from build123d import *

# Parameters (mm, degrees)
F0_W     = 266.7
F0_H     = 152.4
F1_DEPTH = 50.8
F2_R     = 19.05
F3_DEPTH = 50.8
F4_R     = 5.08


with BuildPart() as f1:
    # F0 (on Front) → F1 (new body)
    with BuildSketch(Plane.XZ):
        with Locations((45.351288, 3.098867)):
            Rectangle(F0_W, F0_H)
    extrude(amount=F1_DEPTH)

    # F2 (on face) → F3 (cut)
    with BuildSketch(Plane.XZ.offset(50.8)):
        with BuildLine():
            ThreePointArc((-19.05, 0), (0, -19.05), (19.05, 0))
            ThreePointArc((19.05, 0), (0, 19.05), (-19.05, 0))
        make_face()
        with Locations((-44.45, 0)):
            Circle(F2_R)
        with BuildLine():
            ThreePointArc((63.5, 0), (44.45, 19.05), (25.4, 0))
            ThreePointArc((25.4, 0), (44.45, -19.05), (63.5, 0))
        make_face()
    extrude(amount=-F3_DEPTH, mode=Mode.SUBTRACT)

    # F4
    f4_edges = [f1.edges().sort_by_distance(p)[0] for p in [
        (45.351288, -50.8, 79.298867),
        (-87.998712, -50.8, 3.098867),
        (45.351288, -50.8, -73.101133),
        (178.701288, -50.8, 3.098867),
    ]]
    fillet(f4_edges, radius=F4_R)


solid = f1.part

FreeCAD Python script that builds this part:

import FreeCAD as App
import Part
import Sketcher
Q = App.Units.Quantity


def edges_at(feature, points):
    """Names of the edges that pass closest to the given points."""
    edges = feature.Shape.Edges
    near = lambda p: min(range(len(edges)), key=lambda i: edges[i].distToShape(Part.Vertex(*p))[0])
    return sorted({f"Edge{near(p) + 1}" for p in points})

doc = App.newDocument("Part")
body = doc.addObject("PartDesign::Body", "Body")

# Sketch on XZ plane
sketch1 = body.newObject("Sketcher::SketchObject", "Sketch")
sketch1.AttachmentSupport = (doc.getObject("XZ_Plane"), [""])
sketch1.MapMode = "FlatFace"
sketch1.addGeometry([
    Part.LineSegment(App.Vector(-88, 79, 0), App.Vector(-88, -73, 0)),
    Part.LineSegment(App.Vector(-88, -73, 0), App.Vector(179, -73, 0)),
    Part.LineSegment(App.Vector(179, -73, 0), App.Vector(179, 79, 0)),
    Part.LineSegment(App.Vector(179, 79, 0), App.Vector(-88, 79, 0)),
], False)
sketch1.addConstraint([
    Sketcher.Constraint("Coincident", 0, 2, 1, 1),
    Sketcher.Constraint("Coincident", 1, 2, 2, 1),
    Sketcher.Constraint("Coincident", 2, 2, 3, 1),
    Sketcher.Constraint("Coincident", 3, 2, 0, 1),
    Sketcher.Constraint("Vertical", 0),
    Sketcher.Constraint("Horizontal", 1),
    Sketcher.Constraint("Vertical", 2),
    Sketcher.Constraint("Horizontal", 3),
    Sketcher.Constraint("DistanceY", 0, 2, 0, 1, Q("6 in")),
    Sketcher.Constraint("DistanceX", 1, 1, 1, 2, Q("10.5 in")),
    Sketcher.Constraint("DistanceX", 0, 2, -1, 1, 87.998712),
    Sketcher.Constraint("DistanceY", 0, 2, -1, 1, 73.101133),
])
pad1 = body.newObject("PartDesign::Pad", "Pad")
pad1.Profile = sketch1
pad1.Length = Q("2 in")

# Sketch on XZ plane
sketch2 = body.newObject("Sketcher::SketchObject", "Sketch001")
sketch2.AttachmentSupport = (doc.getObject("XZ_Plane"), [""])
sketch2.MapMode = "FlatFace"
sketch2.AttachmentOffset = App.Placement(App.Vector(0, 0, 2 * 25.4), App.Rotation())
sketch2.addGeometry([
    Part.Circle(App.Vector(0, 0, 0), App.Vector(0, 0, 1), 19),
    Part.Circle(App.Vector(-44, 0, 0), App.Vector(0, 0, 1), 19),
    Part.Circle(App.Vector(44, 0, 0), App.Vector(0, 0, 1), 19),
], False)
sketch2.addConstraint([
    Sketcher.Constraint("Coincident", 0, 3, -1, 1),
    Sketcher.Constraint("Equal", 0, 1),
    Sketcher.Constraint("Equal", 1, 2),
    Sketcher.Constraint("Symmetric", 1, 3, 2, 3, -1, 1),
    Sketcher.Constraint("PointOnObject", 1, 3, -1),
    Sketcher.Constraint("Diameter", 0, Q("1.5 in")),
    Sketcher.Constraint("DistanceX", 1, 3, 2, 3, Q("3.5 in")),
])
pocket1 = body.newObject("PartDesign::Pocket", "Pocket")
pocket1.Profile = sketch2
pocket1.Length = Q("2 in")
doc.recompute()

fillet = body.newObject("PartDesign::Fillet", "Fillet")
fillet.Base = (pocket1, edges_at(pocket1, [
    (45.351, -50.8, 79.299),
    (-87.999, -50.8, 3.099),
    (45.351, -50.8, -73.101),
    (178.701, -50.8, 3.099),
]))
fillet.Radius = Q("0.2 in")

doc.recompute()
